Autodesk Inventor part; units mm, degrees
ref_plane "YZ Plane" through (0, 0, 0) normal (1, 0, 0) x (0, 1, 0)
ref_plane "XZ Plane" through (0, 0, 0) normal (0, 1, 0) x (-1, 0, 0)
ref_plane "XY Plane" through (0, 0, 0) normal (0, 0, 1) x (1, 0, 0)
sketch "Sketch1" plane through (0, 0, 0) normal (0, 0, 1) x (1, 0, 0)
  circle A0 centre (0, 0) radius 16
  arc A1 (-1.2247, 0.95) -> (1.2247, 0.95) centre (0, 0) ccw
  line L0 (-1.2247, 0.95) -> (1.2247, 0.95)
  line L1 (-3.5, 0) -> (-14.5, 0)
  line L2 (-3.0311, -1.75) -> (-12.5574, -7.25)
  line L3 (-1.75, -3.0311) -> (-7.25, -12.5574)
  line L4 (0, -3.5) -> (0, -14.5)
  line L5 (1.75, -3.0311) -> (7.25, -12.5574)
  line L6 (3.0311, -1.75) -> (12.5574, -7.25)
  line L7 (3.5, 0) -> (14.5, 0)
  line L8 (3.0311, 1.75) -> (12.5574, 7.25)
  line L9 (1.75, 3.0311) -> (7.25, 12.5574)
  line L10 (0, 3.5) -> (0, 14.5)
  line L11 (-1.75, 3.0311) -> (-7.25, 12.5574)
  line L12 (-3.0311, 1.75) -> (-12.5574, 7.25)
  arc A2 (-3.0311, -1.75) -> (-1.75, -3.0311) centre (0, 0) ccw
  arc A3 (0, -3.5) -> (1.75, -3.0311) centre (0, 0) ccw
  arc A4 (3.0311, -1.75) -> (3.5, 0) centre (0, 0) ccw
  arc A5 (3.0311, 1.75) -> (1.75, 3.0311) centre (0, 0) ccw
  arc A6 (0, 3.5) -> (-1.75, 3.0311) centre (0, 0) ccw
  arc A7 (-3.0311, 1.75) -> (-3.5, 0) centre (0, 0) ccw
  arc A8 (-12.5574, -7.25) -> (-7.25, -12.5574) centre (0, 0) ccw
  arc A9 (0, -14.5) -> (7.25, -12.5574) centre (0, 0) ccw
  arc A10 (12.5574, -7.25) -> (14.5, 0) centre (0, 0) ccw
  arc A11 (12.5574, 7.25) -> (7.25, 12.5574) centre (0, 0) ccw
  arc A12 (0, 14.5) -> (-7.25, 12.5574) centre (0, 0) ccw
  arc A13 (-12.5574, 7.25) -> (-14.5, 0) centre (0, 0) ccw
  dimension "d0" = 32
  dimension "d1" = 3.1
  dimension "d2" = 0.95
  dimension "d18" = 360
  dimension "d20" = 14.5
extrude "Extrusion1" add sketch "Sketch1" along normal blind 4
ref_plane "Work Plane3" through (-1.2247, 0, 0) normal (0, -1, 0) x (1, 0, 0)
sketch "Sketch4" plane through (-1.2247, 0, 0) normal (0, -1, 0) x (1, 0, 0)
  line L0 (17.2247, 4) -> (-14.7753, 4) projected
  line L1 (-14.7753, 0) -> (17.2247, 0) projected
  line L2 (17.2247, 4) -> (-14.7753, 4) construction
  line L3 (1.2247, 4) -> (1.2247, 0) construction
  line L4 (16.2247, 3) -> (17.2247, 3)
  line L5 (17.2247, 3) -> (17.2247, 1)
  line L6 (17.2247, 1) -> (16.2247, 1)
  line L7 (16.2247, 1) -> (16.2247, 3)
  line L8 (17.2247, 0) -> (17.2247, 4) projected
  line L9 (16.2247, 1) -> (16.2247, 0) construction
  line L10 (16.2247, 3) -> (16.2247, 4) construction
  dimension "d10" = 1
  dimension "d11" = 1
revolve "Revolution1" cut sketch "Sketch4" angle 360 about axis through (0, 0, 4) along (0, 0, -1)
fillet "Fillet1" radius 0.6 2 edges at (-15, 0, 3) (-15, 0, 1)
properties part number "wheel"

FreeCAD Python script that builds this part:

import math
import FreeCAD as App
import Part
import Sketcher
from FreeCAD import Vector
Q = App.Units.Quantity


def edges_at(feature, points):
    """Names of the edges that pass closest to the given points."""
    edges = feature.Shape.Edges
    near = lambda p: min(range(len(edges)), key=lambda i: edges[i].distToShape(Part.Vertex(*p))[0])
    return sorted({f"Edge{near(p) + 1}" for p in points})


def add_polygon(sketch, points):
    """Adds a closed chain of lines whose ends are joined by coincident constraints."""
    first, n = sketch.GeometryCount, len(points)
    for a, b in zip(points, points[1:] + points[:1]):
        sketch.addGeometry(Part.LineSegment(App.Vector(*a, 0), App.Vector(*b, 0)), False)
    for i in range(n):
        sketch.addConstraint(Sketcher.Constraint("Coincident", first + i, 2, first + (i + 1) % n, 1))

doc = App.newDocument("Part")
body = doc.addObject("PartDesign::Body", "Body")

# Sketch on XY plane
sketch1 = body.newObject("Sketcher::SketchObject", "Sketch")
sketch1.AttachmentSupport = (doc.getObject("XY_Plane"), [""])
sketch1.MapMode = "FlatFace"
sketch1.addGeometry([
    Part.Circle(Vector(0, 0, 0), Vector(0, 0, 1), 16),  # 0
    Part.LineSegment(Vector(-12.6, -7.2, 0), Vector(-3, -1.8, 0)),  # 1
    Part.ArcOfCircle(Part.Circle(Vector(0, 0, 0), Vector(0, 0, 1), 3.5), math.radians(-150), math.radians(-120)),  # 2
    Part.LineSegment(Vector(-1.8, -3, 0), Vector(-7.2, -12.6, 0)),  # 3
    Part.ArcOfCircle(Part.Circle(Vector(0, 0, 0), Vector(0, 0, 1), 14.5), math.radians(-150), math.radians(-120)),  # 4
    Part.LineSegment(Vector(0, -14.5, 0), Vector(0, -3.5, 0)),  # 5
    Part.ArcOfCircle(Part.Circle(Vector(0, 0, 0), Vector(0, 0, 1), 3.5), math.radians(-90), math.radians(-60)),  # 6
    Part.LineSegment(Vector(1.8, -3, 0), Vector(7.2, -12.6, 0)),  # 7
    Part.ArcOfCircle(Part.Circle(Vector(0, 0, 0), Vector(0, 0, 1), 14.5), math.radians(-90), math.radians(-60)),  # 8
    Part.ArcOfCircle(Part.Circle(Vector(0, 0, 0), Vector(0, 0, 1), 1.5), math.radians(142), math.radians(398)),  # 9
    Part.LineSegment(Vector(-1.2, 0.9, 0), Vector(1.2, 0.9, 0)),  # 10
    Part.LineSegment(Vector(12.6, -7.2, 0), Vector(3, -1.8, 0)),  # 11
    Part.ArcOfCircle(Part.Circle(Vector(0, 0, 0), Vector(0, 0, 1), 3.5), math.radians(-30), math.radians(0)),  # 12
    Part.LineSegment(Vector(3.5, 0, 0), Vector(14.5, 0, 0)),  # 13
    Part.ArcOfCircle(Part.Circle(Vector(0, 0, 0), Vector(0, 0, 1), 14.5), math.radians(-30), math.radians(0)),  # 14
    Part.ArcOfCircle(Part.Circle(Vector(0, 0, 0), Vector(0, 0, 1), 3.5), math.radians(150), math.radians(180)),  # 15
    Part.LineSegment(Vector(-3.5, 0, 0), Vector(-14.5, 0, 0)),  # 16
    Part.ArcOfCircle(Part.Circle(Vector(0, 0, 0), Vector(0, 0, 1), 14.5), math.radians(150), math.radians(180)),  # 17
    Part.LineSegment(Vector(-12.6, 7.2, 0), Vector(-3, 1.8, 0)),  # 18
    Part.LineSegment(Vector(0, 14.5, 0), Vector(0, 3.5, 0)),  # 19
    Part.ArcOfCircle(Part.Circle(Vector(0, 0, 0), Vector(0, 0, 1), 3.5), math.radians(90), math.radians(120)),  # 20
    Part.LineSegment(Vector(-1.8, 3, 0), Vector(-7.2, 12.6, 0)),  # 21
    Part.ArcOfCircle(Part.Circle(Vector(0, 0, 0), Vector(0, 0, 1), 14.5), math.radians(90), math.radians(120)),  # 22
    Part.LineSegment(Vector(12.6, 7.2, 0), Vector(3, 1.8, 0)),  # 23
    Part.ArcOfCircle(Part.Circle(Vector(0, 0, 0), Vector(0, 0, 1), 3.5), math.radians(30), math.radians(60)),  # 24
    Part.LineSegment(Vector(1.8, 3, 0), Vector(7.2, 12.6, 0)),  # 25
    Part.ArcOfCircle(Part.Circle(Vector(0, 0, 0), Vector(0, 0, 1), 14.5), math.radians(30), math.radians(60)),  # 26
], False)
sketch1.addConstraint([
    Sketcher.Constraint("Coincident", 1, 2, 2, 1),
    Sketcher.Constraint("Coincident", 2, 2, 3, 1),
    Sketcher.Constraint("Coincident", 3, 2, 4, 2),
    Sketcher.Constraint("Coincident", 4, 1, 1, 1),
    Sketcher.Constraint("Coincident", 5, 2, 6, 1),
    Sketcher.Constraint("Coincident", 6, 2, 7, 1),
    Sketcher.Constraint("Coincident", 7, 2, 8, 2),
    Sketcher.Constraint("Coincident", 8, 1, 5, 1),
    Sketcher.Constraint("Coincident", 9, 1, 10, 1),
    Sketcher.Constraint("Coincident", 10, 2, 9, 2),
    Sketcher.Constraint("Coincident", 11, 2, 12, 1),
    Sketcher.Constraint("Coincident", 12, 2, 13, 1),
    Sketcher.Constraint("Coincident", 13, 2, 14, 2),
    Sketcher.Constraint("Coincident", 14, 1, 11, 1),
    Sketcher.Constraint("Coincident", 15, 2, 16, 1),
    Sketcher.Constraint("Coincident", 16, 2, 17, 2),
    Sketcher.Constraint("Coincident", 17, 1, 18, 1),
    Sketcher.Constraint("Coincident", 18, 2, 15, 1),
    Sketcher.Constraint("Coincident", 19, 2, 20, 1),
    Sketcher.Constraint("Coincident", 20, 2, 21, 1),
    Sketcher.Constraint("Coincident", 21, 2, 22, 2),
    Sketcher.Constraint("Coincident", 22, 1, 19, 1),
    Sketcher.Constraint("Coincident", 23, 2, 24, 1),
    Sketcher.Constraint("Coincident", 24, 2, 25, 1),
    Sketcher.Constraint("Coincident", 25, 2, 26, 2),
    Sketcher.Constraint("Coincident", 26, 1, 23, 1),
    Sketcher.Constraint("Vertical", 5),
    Sketcher.Constraint("Horizontal", 10),
    Sketcher.Constraint("Horizontal", 13),
    Sketcher.Constraint("Horizontal", 16),
    Sketcher.Constraint("Vertical", 19),
    Sketcher.Constraint("Coincident", 0, 3, -1, 1),
    Sketcher.Constraint("Coincident", 2, 3, -1, 1),
    Sketcher.Constraint("Coincident", 4, 3, -1, 1),
    Sketcher.Constraint("Coincident", 6, 3, -1, 1),
    Sketcher.Constraint("Coincident", 8, 3, -1, 1),
    Sketcher.Constraint("Coincident", 9, 3, -1, 1),
    Sketcher.Constraint("Coincident", 12, 3, -1, 1),
    Sketcher.Constraint("Coincident", 14, 3, -1, 1),
    Sketcher.Constraint("Coincident", 15, 3, -1, 1),
    Sketcher.Constraint("Coincident", 17, 3, -1, 1),
    Sketcher.Constraint("Coincident", 20, 3, -1, 1),
    Sketcher.Constraint("Coincident", 22, 3, -1, 1),
    Sketcher.Constraint("Coincident", 24, 3, -1, 1),
    Sketcher.Constraint("Coincident", 26, 3, -1, 1),
    Sketcher.Constraint("Equal", 2, 6),
    Sketcher.Constraint("Equal", 4, 8),
    Sketcher.Constraint("Equal", 6, 12),
    Sketcher.Constraint("Equal", 8, 14),
    Sketcher.Constraint("Equal", 12, 15),
    Sketcher.Constraint("Equal", 14, 17),
    Sketcher.Constraint("Equal", 15, 20),
    Sketcher.Constraint("Equal", 17, 22),
    Sketcher.Constraint("Equal", 20, 24),
    Sketcher.Constraint("Equal", 22, 26),
    Sketcher.Constraint("PointOnObject", 5, 2, -2),
    Sketcher.Constraint("PointOnObject", 12, 2, -1),
    Sketcher.Constraint("PointOnObject", 15, 2, -1),
    Sketcher.Constraint("PointOnObject", 19, 2, -2),
    Sketcher.Constraint("Perpendicular", 1, 7),
    Sketcher.Constraint("Perpendicular", 3, 11),
    Sketcher.Constraint("Parallel", 11, 18),
    Sketcher.Constraint("Parallel", 7, 21),
    Sketcher.Constraint("Perpendicular", 21, 23),
    Sketcher.Constraint("Perpendicular", 18, 25),
    Sketcher.Constraint("Horizontal", 2, 2, 6, 2),
    Sketcher.Constraint("Horizontal", 3, 2, 7, 2),
    Sketcher.Constraint("Horizontal", 1, 2, 11, 2),
    Sketcher.Constraint("Horizontal", 18, 2, 23, 2),
    Sketcher.Constraint("Horizontal", 20, 2, 24, 2),
    Sketcher.Constraint("Vertical", 4, 1, 17, 1),
    Sketcher.Constraint("Vertical", 2, 2, 20, 2),
    Sketcher.Constraint("Diameter", 0, Q("32 mm")),
    Sketcher.Constraint("Radius", 4, Q("14.5 mm")),
    Sketcher.Constraint("Radius", 9, Q("1.55 mm")),
    Sketcher.Constraint("Radius", 2, Q("3.5 mm")),
    Sketcher.Constraint("DistanceX", 3, 2, 7, 2, Q("14.5 mm")),
    Sketcher.Constraint("DistanceY", 4, 1, 17, 1, Q("14.5 mm")),
    Sketcher.Constraint("DistanceY", -1, 1, 9, 1, Q("0.95 mm")),
    Sketcher.Constraint("Angle", 1, Q("30 deg")),
])
pad1 = body.newObject("PartDesign::Pad", "Pad")
pad1.Profile = sketch1
pad1.Length = 4

# Sketch on XZ plane
sketch2 = body.newObject("Sketcher::SketchObject", "Sketch001")
sketch2.AttachmentSupport = (doc.getObject("XZ_Plane"), [""])
sketch2.MapMode = "FlatFace"
add_polygon(sketch2, [(16, 3), (15, 3), (15, 1), (16, 1)])  # lines 0-3
sketch2.addConstraint([
    Sketcher.Constraint("Horizontal", 0),
    Sketcher.Constraint("Vertical", 1),
    Sketcher.Constraint("Horizontal", 2),
    Sketcher.Constraint("Vertical", 3),
    Sketcher.Constraint("DistanceX", 0, 2, 0, 1, Q("1 mm")),
    Sketcher.Constraint("DistanceY", -1, 1, 1, 2, Q("1 mm")),
    Sketcher.Constraint("DistanceY", 1, 2, 1, 1, Q("2 mm")),
    Sketcher.Constraint("DistanceX", -1, 1, 0, 2, Q("15 mm")),
])
groove = body.newObject("PartDesign::Groove", "Groove")
groove.Profile = sketch2
groove.ReferenceAxis = (sketch2, ["V_Axis"])
groove.Angle = 360
doc.recompute()

fillet = body.newObject("PartDesign::Fillet", "Fillet")
fillet.Base = (groove, edges_at(groove, [(-15, 0, 3), (-15, 0, 1)]))
fillet.Radius = 0.6

doc.recompute()
